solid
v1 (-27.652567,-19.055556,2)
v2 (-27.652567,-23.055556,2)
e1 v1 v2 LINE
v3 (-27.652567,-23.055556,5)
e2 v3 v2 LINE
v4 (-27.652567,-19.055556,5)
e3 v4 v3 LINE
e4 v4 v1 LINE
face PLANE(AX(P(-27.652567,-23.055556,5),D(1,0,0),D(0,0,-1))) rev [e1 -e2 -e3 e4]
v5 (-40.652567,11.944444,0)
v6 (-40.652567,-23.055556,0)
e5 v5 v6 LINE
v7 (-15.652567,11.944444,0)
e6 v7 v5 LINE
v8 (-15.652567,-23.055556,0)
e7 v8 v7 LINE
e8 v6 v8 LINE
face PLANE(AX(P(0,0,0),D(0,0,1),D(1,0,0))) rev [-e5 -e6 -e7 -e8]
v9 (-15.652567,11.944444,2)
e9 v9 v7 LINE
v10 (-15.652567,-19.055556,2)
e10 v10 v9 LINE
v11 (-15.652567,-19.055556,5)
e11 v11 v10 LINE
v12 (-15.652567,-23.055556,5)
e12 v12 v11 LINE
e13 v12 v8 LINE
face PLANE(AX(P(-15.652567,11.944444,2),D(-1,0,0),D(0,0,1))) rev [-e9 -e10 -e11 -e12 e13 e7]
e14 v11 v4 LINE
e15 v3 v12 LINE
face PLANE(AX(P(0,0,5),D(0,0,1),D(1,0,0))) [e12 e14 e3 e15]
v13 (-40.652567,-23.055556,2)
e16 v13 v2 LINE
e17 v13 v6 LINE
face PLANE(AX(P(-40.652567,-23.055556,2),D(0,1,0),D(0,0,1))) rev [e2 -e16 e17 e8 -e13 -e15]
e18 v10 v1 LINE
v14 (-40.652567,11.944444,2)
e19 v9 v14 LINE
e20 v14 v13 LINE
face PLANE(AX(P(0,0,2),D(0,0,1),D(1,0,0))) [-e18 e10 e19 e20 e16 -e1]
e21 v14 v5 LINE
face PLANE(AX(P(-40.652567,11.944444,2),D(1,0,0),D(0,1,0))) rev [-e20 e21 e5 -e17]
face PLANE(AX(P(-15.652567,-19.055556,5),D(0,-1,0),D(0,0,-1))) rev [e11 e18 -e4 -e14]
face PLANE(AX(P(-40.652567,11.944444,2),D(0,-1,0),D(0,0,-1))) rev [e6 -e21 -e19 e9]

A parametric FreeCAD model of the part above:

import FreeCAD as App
import Part
import Sketcher
Q = App.Units.Quantity


def add_polygon(sketch, points):
    """Adds a closed chain of lines whose ends are joined by coincident constraints."""
    first, n = sketch.GeometryCount, len(points)
    for a, b in zip(points, points[1:] + points[:1]):
        sketch.addGeometry(Part.LineSegment(App.Vector(*a, 0), App.Vector(*b, 0)), False)
    for i in range(n):
        sketch.addConstraint(Sketcher.Constraint("Coincident", first + i, 2, first + (i + 1) % n, 1))

doc = App.newDocument("Part")
body = doc.addObject("PartDesign::Body", "Body")

# Sketch on XY plane
sketch1 = doc.addObject("Sketcher::SketchObject", "Sketch")
body.addObject(sketch1)
sketch1.AttachmentSupport = (doc.XY_Plane, [""])
sketch1.MapMode = "FlatFace"
add_polygon(sketch1, [(-41, 12), (-41, -23), (-16, -23), (-16, 12)])  # lines 0-3
sketch1.addConstraint([
    Sketcher.Constraint("Vertical", 0),
    Sketcher.Constraint("Horizontal", 1),
    Sketcher.Constraint("Vertical", 2),
    Sketcher.Constraint("Horizontal", 3),
    Sketcher.Constraint("DistanceX", 1, 1, 1, 2, Q("25 mm")),
    Sketcher.Constraint("DistanceY", 0, 2, 0, 1, Q("35 mm")),
    Sketcher.Constraint("DistanceX", 0, 2, -1, 1, Q("40.652567 mm")),
    Sketcher.Constraint("DistanceY", 0, 2, -1, 1, Q("23.055556 mm")),
])
pad1 = doc.addObject("PartDesign::Pad", "Pad")
body.addObject(pad1)
pad1.Profile = sketch1
pad1.Length = 2

# Sketch on XY plane
sketch2 = doc.addObject("Sketcher::SketchObject", "Sketch001")
body.addObject(sketch2)
sketch2.AttachmentSupport = (doc.XY_Plane, [""])
sketch2.MapMode = "FlatFace"
sketch2.AttachmentOffset = App.Placement(App.Vector(0, 0, 2), App.Rotation())
add_polygon(sketch2, [(-27.7, -19.1), (-27.7, -23.1), (-15.7, -23.1), (-15.7, -19.1)])  # lines 0-3
sketch2.addConstraint([
    Sketcher.Constraint("Vertical", 0),
    Sketcher.Constraint("Horizontal", 1),
    Sketcher.Constraint("Vertical", 2),
    Sketcher.Constraint("Horizontal", 3),
    Sketcher.Constraint("DistanceX", 1, 1, 1, 2, Q("12 mm")),
    Sketcher.Constraint("DistanceY", 0, 2, 0, 1, Q("4 mm")),
    Sketcher.Constraint("DistanceX", 0, 2, -1, 1, Q("27.652567 mm")),
    Sketcher.Constraint("DistanceY", 0, 2, -1, 1, Q("23.055556 mm")),
])
pad2 = doc.addObject("PartDesign::Pad", "Pad001")
body.addObject(pad2)
pad2.Profile = sketch2
pad2.Length = 3

doc.recompute()
